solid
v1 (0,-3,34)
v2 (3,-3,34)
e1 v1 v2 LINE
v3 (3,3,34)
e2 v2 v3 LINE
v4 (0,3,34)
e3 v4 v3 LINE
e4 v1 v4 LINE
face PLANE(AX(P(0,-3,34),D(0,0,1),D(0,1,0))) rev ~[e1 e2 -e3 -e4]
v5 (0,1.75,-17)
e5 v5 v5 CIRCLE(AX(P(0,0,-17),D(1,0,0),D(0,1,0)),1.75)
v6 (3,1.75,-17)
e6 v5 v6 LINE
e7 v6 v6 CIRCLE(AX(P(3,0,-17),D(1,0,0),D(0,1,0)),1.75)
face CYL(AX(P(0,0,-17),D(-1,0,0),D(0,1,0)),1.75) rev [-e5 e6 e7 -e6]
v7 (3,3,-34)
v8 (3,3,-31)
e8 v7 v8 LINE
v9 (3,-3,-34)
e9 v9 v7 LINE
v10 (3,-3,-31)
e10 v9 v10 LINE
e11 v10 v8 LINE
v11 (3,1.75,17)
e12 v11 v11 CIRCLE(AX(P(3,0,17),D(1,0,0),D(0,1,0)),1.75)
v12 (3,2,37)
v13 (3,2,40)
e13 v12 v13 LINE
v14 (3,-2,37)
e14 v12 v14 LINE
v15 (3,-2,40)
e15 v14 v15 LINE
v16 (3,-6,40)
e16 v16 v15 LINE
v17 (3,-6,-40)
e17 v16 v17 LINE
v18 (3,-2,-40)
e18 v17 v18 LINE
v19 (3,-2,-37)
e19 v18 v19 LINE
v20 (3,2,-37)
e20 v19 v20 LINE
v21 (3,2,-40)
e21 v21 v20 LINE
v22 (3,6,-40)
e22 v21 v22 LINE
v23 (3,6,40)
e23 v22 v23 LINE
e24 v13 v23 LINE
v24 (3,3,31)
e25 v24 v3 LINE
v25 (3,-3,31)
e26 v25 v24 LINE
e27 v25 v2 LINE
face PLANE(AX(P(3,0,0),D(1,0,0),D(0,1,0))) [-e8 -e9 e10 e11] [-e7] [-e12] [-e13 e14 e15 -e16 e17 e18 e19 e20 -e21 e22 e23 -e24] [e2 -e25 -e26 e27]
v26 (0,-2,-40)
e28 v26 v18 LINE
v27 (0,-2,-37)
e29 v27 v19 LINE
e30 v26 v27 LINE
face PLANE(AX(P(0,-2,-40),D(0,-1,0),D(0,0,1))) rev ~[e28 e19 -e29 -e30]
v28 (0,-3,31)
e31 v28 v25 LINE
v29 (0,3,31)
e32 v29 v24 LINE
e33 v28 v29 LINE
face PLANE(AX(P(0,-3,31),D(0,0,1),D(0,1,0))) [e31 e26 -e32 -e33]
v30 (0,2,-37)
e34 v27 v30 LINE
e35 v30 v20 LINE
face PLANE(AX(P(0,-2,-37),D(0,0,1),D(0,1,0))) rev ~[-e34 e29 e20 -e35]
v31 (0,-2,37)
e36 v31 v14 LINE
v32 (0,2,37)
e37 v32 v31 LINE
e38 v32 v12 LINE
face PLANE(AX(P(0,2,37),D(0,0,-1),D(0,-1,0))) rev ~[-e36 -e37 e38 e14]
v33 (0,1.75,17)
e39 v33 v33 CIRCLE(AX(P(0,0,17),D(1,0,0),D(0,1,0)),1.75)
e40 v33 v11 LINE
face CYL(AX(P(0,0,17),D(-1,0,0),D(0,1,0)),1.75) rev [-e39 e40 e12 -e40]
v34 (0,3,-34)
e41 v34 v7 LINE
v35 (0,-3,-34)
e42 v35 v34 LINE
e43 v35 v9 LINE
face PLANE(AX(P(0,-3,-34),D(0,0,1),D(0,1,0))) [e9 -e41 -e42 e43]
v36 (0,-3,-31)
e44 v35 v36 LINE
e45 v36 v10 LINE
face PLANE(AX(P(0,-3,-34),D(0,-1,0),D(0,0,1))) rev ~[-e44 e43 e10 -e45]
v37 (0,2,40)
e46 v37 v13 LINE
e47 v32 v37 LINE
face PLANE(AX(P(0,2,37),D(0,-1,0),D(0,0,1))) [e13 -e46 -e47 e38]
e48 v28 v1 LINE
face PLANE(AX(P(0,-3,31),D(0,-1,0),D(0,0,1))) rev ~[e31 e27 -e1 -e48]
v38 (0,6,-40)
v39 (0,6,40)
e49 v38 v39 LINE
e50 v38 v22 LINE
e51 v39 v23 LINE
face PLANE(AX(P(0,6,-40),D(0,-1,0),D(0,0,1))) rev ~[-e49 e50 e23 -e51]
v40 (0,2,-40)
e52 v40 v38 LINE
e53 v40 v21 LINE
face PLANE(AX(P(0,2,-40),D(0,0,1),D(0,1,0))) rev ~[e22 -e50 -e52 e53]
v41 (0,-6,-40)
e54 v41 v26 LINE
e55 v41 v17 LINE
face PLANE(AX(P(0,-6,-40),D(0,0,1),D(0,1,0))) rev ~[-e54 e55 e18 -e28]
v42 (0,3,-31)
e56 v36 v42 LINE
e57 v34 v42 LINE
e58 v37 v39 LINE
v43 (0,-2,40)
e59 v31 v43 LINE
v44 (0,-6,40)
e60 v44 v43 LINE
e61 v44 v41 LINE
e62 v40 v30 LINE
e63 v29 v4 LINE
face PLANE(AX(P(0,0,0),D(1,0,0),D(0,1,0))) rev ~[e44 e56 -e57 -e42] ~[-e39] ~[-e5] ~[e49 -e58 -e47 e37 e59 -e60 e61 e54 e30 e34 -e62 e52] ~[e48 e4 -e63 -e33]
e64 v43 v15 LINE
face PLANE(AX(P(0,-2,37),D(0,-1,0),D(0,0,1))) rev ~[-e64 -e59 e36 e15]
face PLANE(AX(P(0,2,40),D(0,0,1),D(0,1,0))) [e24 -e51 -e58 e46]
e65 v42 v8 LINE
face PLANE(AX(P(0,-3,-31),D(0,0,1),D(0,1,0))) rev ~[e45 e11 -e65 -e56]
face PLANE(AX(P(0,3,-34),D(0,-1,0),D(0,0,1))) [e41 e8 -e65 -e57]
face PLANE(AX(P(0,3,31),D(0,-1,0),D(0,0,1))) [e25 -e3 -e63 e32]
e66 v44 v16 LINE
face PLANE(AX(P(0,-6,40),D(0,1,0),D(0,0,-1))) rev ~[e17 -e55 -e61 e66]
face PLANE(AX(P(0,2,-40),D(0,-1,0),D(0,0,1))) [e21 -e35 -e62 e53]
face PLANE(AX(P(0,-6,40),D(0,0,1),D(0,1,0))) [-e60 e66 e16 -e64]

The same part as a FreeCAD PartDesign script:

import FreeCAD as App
import Part
import Sketcher

V = App.Vector

doc = App.newDocument("Part")
body = doc.addObject("PartDesign::Body", "Body")

sketch1 = body.newObject("Sketcher::SketchObject", "Sketch")
sketch1.AttachmentSupport = (doc.getObject("YZ_Plane"), [""])
sketch1.MapMode = "FlatFace"
sketch1.addGeometry(Part.LineSegment(V(6, 40, 0), V(2, 40, 0)), False)
sketch1.addGeometry(Part.LineSegment(V(2, 40, 0), V(2, 37, 0)), False)
sketch1.addGeometry(Part.LineSegment(V(2, 37, 0), V(-2, 37, 0)), False)
sketch1.addGeometry(Part.LineSegment(V(-2, 37, 0), V(-2, 40, 0)), False)
sketch1.addGeometry(Part.LineSegment(V(-2, 40, 0), V(-6, 40, 0)), False)
sketch1.addGeometry(Part.LineSegment(V(-6, 40, 0), V(-6, -40, 0)), False)
sketch1.addGeometry(Part.LineSegment(V(-6, -40, 0), V(-2, -40, 0)), False)
sketch1.addGeometry(Part.LineSegment(V(-2, -40, 0), V(-2, -37, 0)), False)
sketch1.addGeometry(Part.LineSegment(V(-2, -37, 0), V(2, -37, 0)), False)
sketch1.addGeometry(Part.LineSegment(V(2, -37, 0), V(2, -40, 0)), False)
sketch1.addGeometry(Part.LineSegment(V(2, -40, 0), V(6, -40, 0)), False)
sketch1.addGeometry(Part.LineSegment(V(6, -40, 0), V(6, 40, 0)), False)
sketch1.addGeometry(Part.LineSegment(V(3, -34, 0), V(-3, -34, 0)), False)
sketch1.addGeometry(Part.LineSegment(V(-3, -34, 0), V(-3, -31, 0)), False)
sketch1.addGeometry(Part.LineSegment(V(-3, -31, 0), V(3, -31, 0)), False)
sketch1.addGeometry(Part.LineSegment(V(3, -31, 0), V(3, -34, 0)), False)
sketch1.addGeometry(Part.Circle(V(0, -17, 0), V(0, 0, 1), 1.8), False)
sketch1.addGeometry(Part.Circle(V(0, 17, 0), V(0, 0, 1), 1.8), False)
sketch1.addGeometry(Part.LineSegment(V(3, 31, 0), V(-3, 31, 0)), False)
sketch1.addGeometry(Part.LineSegment(V(-3, 31, 0), V(-3, 34, 0)), False)
sketch1.addGeometry(Part.LineSegment(V(-3, 34, 0), V(3, 34, 0)), False)
sketch1.addGeometry(Part.LineSegment(V(3, 34, 0), V(3, 31, 0)), False)
sketch1.addConstraint(Sketcher.Constraint("Coincident", 0, 2, 1, 1))
sketch1.addConstraint(Sketcher.Constraint("Coincident", 1, 2, 2, 1))
sketch1.addConstraint(Sketcher.Constraint("Coincident", 2, 2, 3, 1))
sketch1.addConstraint(Sketcher.Constraint("Coincident", 3, 2, 4, 1))
sketch1.addConstraint(Sketcher.Constraint("Coincident", 4, 2, 5, 1))
sketch1.addConstraint(Sketcher.Constraint("Coincident", 5, 2, 6, 1))
sketch1.addConstraint(Sketcher.Constraint("Coincident", 6, 2, 7, 1))
sketch1.addConstraint(Sketcher.Constraint("Coincident", 7, 2, 8, 1))
sketch1.addConstraint(Sketcher.Constraint("Coincident", 8, 2, 9, 1))
sketch1.addConstraint(Sketcher.Constraint("Coincident", 9, 2, 10, 1))
sketch1.addConstraint(Sketcher.Constraint("Coincident", 10, 2, 11, 1))
sketch1.addConstraint(Sketcher.Constraint("Coincident", 11, 2, 0, 1))
sketch1.addConstraint(Sketcher.Constraint("Coincident", 12, 2, 13, 1))
sketch1.addConstraint(Sketcher.Constraint("Coincident", 13, 2, 14, 1))
sketch1.addConstraint(Sketcher.Constraint("Coincident", 14, 2, 15, 1))
sketch1.addConstraint(Sketcher.Constraint("Coincident", 15, 2, 12, 1))
sketch1.addConstraint(Sketcher.Constraint("Coincident", 18, 2, 19, 1))
sketch1.addConstraint(Sketcher.Constraint("Coincident", 19, 2, 20, 1))
sketch1.addConstraint(Sketcher.Constraint("Coincident", 20, 2, 21, 1))
sketch1.addConstraint(Sketcher.Constraint("Coincident", 21, 2, 18, 1))
sketch1.addConstraint(Sketcher.Constraint("Horizontal", 0))
sketch1.addConstraint(Sketcher.Constraint("Vertical", 1))
sketch1.addConstraint(Sketcher.Constraint("Horizontal", 2))
sketch1.addConstraint(Sketcher.Constraint("Vertical", 3))
sketch1.addConstraint(Sketcher.Constraint("Horizontal", 4))
sketch1.addConstraint(Sketcher.Constraint("Vertical", 5))
sketch1.addConstraint(Sketcher.Constraint("Horizontal", 6))
sketch1.addConstraint(Sketcher.Constraint("Vertical", 7))
sketch1.addConstraint(Sketcher.Constraint("Horizontal", 8))
sketch1.addConstraint(Sketcher.Constraint("Vertical", 9))
sketch1.addConstraint(Sketcher.Constraint("Horizontal", 10))
sketch1.addConstraint(Sketcher.Constraint("Vertical", 11))
sketch1.addConstraint(Sketcher.Constraint("Horizontal", 12))
sketch1.addConstraint(Sketcher.Constraint("Vertical", 13))
sketch1.addConstraint(Sketcher.Constraint("Horizontal", 14))
sketch1.addConstraint(Sketcher.Constraint("Vertical", 15))
sketch1.addConstraint(Sketcher.Constraint("Horizontal", 18))
sketch1.addConstraint(Sketcher.Constraint("Vertical", 19))
sketch1.addConstraint(Sketcher.Constraint("Horizontal", 20))
sketch1.addConstraint(Sketcher.Constraint("Vertical", 21))
sketch1.addConstraint(Sketcher.Constraint("Equal", 16, 17))
sketch1.addConstraint(Sketcher.Constraint("Symmetric", 16, 3, 17, 3, -1, 1))
sketch1.addConstraint(Sketcher.Constraint("Symmetric", 0, 2, 6, 2, -1, 1))
sketch1.addConstraint(Sketcher.Constraint("Symmetric", 2, 2, 8, 2, -1, 1))
sketch1.addConstraint(Sketcher.Constraint("Symmetric", 4, 2, 10, 2, -1, 1))
sketch1.addConstraint(Sketcher.Constraint("Symmetric", 14, 2, 18, 2, -1, 1))
sketch1.addConstraint(Sketcher.Constraint("Symmetric", 12, 2, 20, 2, -1, 1))
sketch1.addConstraint(Sketcher.Constraint("Symmetric", 0, 2, 3, 2, -2))
sketch1.addConstraint(Sketcher.Constraint("PointOnObject", 16, 3, -2))
sketch1.addConstraint(Sketcher.Constraint("Vertical", 13, 2, 18, 2))
sketch1.addConstraint(Sketcher.Constraint("Equal", 0, 2))
sketch1.addConstraint(Sketcher.Constraint("Equal", 9, 13))
sketch1.addConstraint(Sketcher.Constraint("Diameter", 16, 3.5))
sketch1.addConstraint(Sketcher.Constraint("DistanceX", 0, 2, 0, 1, 4.0))
sketch1.addConstraint(Sketcher.Constraint("DistanceX", 12, 2, 12, 1, 6.0))
sketch1.addConstraint(Sketcher.Constraint("DistanceY", 1, 2, 1, 1, 3.0))
sketch1.addConstraint(Sketcher.Constraint("DistanceY", 5, 2, 5, 1, 80.0))
sketch1.addConstraint(Sketcher.Constraint("DistanceY", 16, 3, -1, 1, 17.0))
sketch1.addConstraint(Sketcher.Constraint("DistanceY", 12, 2, -1, 1, 34.0))
pad1 = body.newObject("PartDesign::Pad", "Pad")
pad1.Profile = sketch1
pad1.Length = 3

doc.recompute()
